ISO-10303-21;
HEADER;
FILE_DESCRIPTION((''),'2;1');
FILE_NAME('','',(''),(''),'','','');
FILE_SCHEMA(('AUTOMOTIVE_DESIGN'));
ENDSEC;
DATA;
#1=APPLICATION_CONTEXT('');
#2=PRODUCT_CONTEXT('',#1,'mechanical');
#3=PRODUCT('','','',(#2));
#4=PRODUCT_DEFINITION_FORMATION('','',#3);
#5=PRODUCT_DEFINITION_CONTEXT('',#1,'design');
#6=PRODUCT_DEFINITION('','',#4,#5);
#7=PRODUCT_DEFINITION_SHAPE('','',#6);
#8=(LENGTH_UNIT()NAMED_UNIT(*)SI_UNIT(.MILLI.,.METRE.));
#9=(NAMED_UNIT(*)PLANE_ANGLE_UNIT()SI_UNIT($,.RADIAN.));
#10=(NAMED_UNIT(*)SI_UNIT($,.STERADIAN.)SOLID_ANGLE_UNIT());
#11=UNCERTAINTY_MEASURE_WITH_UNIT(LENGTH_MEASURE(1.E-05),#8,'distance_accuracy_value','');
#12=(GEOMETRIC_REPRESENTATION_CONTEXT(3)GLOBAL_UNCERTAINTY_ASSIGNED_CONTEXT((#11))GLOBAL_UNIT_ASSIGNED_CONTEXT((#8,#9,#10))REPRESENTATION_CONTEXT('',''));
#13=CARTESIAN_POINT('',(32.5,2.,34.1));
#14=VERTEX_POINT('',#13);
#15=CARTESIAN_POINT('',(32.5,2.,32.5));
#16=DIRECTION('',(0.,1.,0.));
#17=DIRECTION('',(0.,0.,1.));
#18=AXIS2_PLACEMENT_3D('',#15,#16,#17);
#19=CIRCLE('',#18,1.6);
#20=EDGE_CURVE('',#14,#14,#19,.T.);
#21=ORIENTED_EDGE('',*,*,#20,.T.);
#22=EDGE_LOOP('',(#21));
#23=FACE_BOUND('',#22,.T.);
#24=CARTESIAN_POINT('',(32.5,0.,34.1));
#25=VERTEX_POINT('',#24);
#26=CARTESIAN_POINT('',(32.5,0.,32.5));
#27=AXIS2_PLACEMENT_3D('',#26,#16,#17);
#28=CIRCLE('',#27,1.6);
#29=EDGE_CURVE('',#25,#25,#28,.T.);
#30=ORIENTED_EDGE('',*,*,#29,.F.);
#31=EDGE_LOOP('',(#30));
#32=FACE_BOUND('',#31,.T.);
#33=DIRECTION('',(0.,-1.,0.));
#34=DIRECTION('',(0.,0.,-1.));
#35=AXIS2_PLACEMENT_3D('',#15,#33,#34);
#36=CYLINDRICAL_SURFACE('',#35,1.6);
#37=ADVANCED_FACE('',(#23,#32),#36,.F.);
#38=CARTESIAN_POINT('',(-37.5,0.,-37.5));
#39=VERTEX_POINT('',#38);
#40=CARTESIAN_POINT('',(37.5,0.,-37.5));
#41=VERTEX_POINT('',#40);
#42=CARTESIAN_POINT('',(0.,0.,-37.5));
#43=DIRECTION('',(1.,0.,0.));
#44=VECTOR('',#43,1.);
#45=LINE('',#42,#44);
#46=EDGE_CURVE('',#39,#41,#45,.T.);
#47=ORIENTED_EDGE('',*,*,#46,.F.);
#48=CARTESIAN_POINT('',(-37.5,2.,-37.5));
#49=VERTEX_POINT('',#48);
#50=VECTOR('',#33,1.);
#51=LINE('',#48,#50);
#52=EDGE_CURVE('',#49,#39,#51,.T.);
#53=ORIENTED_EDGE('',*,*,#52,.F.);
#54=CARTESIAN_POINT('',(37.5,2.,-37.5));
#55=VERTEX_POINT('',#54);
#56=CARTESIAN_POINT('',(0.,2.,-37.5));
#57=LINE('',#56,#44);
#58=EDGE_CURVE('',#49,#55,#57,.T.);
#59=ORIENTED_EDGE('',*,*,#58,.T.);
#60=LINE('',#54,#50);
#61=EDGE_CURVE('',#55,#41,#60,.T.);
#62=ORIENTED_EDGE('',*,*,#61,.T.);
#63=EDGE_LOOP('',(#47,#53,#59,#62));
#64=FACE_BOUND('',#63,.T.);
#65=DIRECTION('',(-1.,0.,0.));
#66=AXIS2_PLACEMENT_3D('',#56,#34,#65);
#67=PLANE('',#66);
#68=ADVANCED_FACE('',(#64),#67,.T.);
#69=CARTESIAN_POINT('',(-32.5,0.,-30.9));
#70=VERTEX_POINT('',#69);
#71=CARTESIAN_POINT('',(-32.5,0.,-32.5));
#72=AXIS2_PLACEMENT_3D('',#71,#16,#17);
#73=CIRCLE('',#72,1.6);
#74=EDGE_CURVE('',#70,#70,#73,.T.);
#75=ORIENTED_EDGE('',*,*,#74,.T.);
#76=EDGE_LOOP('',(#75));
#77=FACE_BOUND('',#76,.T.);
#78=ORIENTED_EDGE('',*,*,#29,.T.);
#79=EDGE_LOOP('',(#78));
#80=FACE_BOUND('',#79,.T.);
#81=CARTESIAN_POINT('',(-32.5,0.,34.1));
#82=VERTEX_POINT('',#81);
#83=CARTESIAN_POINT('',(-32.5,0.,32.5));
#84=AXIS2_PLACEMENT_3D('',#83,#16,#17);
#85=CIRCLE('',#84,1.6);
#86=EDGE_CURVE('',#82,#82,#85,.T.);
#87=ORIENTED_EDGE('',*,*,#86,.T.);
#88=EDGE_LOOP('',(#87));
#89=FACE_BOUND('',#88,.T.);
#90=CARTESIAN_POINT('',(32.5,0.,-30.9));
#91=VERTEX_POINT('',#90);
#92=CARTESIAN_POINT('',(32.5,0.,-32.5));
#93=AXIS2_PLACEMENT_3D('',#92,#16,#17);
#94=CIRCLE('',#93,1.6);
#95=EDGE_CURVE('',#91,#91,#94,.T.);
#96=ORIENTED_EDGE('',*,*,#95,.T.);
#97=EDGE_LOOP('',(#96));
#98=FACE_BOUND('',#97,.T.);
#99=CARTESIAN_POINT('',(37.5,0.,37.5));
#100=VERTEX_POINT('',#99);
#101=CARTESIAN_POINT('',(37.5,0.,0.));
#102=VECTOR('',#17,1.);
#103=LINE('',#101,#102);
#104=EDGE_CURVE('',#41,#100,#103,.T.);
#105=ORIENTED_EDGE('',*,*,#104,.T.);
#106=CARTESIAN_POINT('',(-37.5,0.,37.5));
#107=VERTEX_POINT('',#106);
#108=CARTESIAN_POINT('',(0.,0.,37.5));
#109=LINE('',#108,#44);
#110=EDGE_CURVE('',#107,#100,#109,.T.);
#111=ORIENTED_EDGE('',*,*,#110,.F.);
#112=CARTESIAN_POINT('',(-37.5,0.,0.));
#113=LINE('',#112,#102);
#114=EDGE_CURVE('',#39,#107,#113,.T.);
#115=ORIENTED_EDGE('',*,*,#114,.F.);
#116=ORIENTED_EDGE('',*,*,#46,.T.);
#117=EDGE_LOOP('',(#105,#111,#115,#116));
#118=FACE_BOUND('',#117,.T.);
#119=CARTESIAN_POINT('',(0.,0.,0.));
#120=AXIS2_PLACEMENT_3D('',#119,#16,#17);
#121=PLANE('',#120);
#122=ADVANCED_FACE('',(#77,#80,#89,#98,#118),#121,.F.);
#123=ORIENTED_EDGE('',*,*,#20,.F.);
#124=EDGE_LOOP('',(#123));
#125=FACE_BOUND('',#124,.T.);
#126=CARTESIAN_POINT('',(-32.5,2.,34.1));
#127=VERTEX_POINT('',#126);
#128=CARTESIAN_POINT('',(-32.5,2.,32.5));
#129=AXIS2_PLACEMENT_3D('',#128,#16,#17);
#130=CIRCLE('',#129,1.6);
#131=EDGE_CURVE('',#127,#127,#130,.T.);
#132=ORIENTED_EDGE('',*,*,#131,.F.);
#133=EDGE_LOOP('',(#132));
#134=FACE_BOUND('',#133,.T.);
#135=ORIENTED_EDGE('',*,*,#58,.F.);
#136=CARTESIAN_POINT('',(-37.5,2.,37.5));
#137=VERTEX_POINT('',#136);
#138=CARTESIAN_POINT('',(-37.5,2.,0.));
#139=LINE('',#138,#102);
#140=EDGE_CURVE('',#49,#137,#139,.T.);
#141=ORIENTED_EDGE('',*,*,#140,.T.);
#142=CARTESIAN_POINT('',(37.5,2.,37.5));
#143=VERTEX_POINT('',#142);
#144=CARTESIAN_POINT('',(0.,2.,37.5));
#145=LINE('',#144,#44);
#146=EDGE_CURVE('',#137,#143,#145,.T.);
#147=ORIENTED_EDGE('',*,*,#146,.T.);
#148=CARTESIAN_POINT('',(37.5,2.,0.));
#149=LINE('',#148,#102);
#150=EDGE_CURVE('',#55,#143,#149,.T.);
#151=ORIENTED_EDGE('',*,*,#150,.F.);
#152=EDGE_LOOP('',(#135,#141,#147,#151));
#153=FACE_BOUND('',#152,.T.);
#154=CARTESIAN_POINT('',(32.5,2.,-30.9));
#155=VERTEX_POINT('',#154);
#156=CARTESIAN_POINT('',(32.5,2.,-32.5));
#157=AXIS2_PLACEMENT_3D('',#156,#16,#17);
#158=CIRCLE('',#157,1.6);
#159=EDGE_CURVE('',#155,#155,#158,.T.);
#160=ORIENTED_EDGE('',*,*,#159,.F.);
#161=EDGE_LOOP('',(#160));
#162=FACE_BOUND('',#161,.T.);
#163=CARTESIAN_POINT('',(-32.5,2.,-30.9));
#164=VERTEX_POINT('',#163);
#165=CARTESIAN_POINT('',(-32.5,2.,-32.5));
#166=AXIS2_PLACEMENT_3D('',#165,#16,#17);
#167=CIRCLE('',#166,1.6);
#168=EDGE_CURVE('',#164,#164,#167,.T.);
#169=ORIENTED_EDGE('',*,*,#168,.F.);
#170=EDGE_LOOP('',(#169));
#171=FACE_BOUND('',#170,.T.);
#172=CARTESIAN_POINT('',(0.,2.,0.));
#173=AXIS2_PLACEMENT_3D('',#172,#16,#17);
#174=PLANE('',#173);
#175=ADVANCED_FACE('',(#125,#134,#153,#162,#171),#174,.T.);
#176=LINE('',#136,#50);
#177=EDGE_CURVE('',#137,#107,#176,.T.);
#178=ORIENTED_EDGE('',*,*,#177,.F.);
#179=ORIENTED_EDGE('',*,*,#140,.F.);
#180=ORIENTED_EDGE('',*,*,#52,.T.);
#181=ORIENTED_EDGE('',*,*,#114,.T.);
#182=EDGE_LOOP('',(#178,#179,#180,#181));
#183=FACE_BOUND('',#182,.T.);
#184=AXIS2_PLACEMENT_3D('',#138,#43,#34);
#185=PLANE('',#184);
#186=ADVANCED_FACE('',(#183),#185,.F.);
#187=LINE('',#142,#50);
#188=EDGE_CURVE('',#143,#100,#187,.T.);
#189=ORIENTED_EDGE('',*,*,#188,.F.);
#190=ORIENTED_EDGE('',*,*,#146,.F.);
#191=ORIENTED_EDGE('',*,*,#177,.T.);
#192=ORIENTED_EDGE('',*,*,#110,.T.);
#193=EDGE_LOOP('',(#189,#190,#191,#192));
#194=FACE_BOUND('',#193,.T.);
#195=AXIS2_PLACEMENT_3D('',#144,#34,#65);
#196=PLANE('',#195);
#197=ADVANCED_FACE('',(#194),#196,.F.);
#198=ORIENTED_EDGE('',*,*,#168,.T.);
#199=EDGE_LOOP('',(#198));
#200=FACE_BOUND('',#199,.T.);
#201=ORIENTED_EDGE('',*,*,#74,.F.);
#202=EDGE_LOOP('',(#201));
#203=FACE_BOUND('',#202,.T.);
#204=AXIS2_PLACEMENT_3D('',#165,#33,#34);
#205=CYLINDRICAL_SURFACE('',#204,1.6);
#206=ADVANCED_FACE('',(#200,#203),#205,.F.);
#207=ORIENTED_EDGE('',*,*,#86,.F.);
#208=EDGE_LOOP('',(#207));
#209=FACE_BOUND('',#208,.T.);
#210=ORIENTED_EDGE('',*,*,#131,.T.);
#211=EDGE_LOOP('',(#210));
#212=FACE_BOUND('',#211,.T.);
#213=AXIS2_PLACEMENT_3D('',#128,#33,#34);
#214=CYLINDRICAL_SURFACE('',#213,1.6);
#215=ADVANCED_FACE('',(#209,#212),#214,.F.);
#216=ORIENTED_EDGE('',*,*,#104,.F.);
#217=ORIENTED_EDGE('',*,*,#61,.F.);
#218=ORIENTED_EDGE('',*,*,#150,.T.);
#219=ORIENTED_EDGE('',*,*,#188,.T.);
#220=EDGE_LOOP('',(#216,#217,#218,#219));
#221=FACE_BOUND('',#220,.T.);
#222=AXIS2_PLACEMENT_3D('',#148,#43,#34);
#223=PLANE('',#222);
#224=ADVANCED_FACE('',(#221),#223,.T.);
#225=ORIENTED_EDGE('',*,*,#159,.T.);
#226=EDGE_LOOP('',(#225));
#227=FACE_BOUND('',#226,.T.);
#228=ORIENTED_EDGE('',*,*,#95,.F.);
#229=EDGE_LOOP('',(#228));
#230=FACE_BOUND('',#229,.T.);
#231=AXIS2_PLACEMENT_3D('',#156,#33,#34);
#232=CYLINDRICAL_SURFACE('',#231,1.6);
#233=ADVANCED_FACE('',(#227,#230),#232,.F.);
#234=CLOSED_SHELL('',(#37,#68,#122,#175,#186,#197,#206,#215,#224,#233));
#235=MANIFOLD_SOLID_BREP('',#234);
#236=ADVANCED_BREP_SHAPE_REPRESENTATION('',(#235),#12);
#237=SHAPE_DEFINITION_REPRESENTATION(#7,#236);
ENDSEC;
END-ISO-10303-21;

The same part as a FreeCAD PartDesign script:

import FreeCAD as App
import Part
import Sketcher
from FreeCAD import Vector


def add_polygon(sketch, points):
    """Adds a closed chain of lines whose ends are joined by coincident constraints."""
    first, n = sketch.GeometryCount, len(points)
    for a, b in zip(points, points[1:] + points[:1]):
        sketch.addGeometry(Part.LineSegment(App.Vector(*a, 0), App.Vector(*b, 0)), False)
    for i in range(n):
        sketch.addConstraint(Sketcher.Constraint("Coincident", first + i, 2, first + (i + 1) % n, 1))

doc = App.newDocument("Part")
body = doc.addObject("PartDesign::Body", "Body")

# Sketch on XZ plane
sketch1 = body.newObject("Sketcher::SketchObject", "Sketch")
sketch1.AttachmentSupport = (doc.getObject("XZ_Plane"), [""])
sketch1.MapMode = "FlatFace"
add_polygon(sketch1, [(-37.5, -37.5), (-37.5, 37.5), (37.5, 37.5), (37.5, -37.5)])  # lines 0-3
sketch1.addGeometry(Part.Circle(Vector(-32.5, 32.5, 0), Vector(0, 0, 1), 1.6), False)  # 4
sketch1.addGeometry(Part.Circle(Vector(32.5, 32.5, 0), Vector(0, 0, 1), 1.6), False)  # 5
sketch1.addGeometry(Part.Circle(Vector(-32.5, -32.5, 0), Vector(0, 0, 1), 1.6), False)  # 6
sketch1.addGeometry(Part.Circle(Vector(32.5, -32.5, 0), Vector(0, 0, 1), 1.6), False)  # 7
sketch1.addConstraint(Sketcher.Constraint("Vertical", 0))
sketch1.addConstraint(Sketcher.Constraint("Horizontal", 1))
sketch1.addConstraint(Sketcher.Constraint("Vertical", 2))
sketch1.addConstraint(Sketcher.Constraint("Horizontal", 3))
sketch1.addConstraint(Sketcher.Constraint("Equal", 4, 5))
sketch1.addConstraint(Sketcher.Constraint("Equal", 5, 6))
sketch1.addConstraint(Sketcher.Constraint("Equal", 6, 7))
sketch1.addConstraint(Sketcher.Constraint("Symmetric", 5, 3, 6, 3, -1, 1))
sketch1.addConstraint(Sketcher.Constraint("Symmetric", 4, 3, 7, 3, -1, 1))
sketch1.addConstraint(Sketcher.Constraint("Symmetric", 0, 2, 2, 2, -1, 1))
sketch1.addConstraint(Sketcher.Constraint("Symmetric", 4, 3, 5, 3, -2))
sketch1.addConstraint(Sketcher.Constraint("Equal", 3, 0))
sketch1.addConstraint(Sketcher.Constraint("Diameter", 4, 3.2))
sketch1.addConstraint(Sketcher.Constraint("DistanceX", 1, 1, 1, 2, 75.0))
sketch1.addConstraint(Sketcher.Constraint("DistanceX", 4, 3, 5, 3, 65.0))
sketch1.addConstraint(Sketcher.Constraint("DistanceY", 6, 3, 4, 3, 65.0))
pad1 = body.newObject("PartDesign::Pad", "Pad")
pad1.Profile = sketch1
pad1.Length = 2
pad1.Reversed = True

doc.recompute()
